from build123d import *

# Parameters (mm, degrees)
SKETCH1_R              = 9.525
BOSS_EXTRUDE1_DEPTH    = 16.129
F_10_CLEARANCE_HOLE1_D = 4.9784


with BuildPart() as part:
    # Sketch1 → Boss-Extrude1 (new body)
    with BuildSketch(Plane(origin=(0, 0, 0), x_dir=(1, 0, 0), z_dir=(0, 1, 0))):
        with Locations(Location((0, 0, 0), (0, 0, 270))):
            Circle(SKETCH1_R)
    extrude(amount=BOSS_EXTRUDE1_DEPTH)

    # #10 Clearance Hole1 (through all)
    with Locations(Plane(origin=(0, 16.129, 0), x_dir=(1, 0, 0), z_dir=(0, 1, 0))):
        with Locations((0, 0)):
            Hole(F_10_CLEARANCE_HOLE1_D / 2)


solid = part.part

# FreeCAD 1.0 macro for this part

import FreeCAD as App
import Part
import Sketcher
from FreeCAD import Vector
Q = App.Units.Quantity

doc = App.newDocument("Part")
body = doc.addObject("PartDesign::Body", "Body")

# Sketch on XZ plane
sketch1 = body.newObject("Sketcher::SketchObject", "Sketch")
sketch1.AttachmentSupport = (doc.getObject("XZ_Plane"), [""])
sketch1.MapMode = "FlatFace"
sketch1.addGeometry(Part.Circle(Vector(0, 0, 0), Vector(0, 0, 1), 10), False)
sketch1.addConstraint([
    Sketcher.Constraint("Coincident", 0, 3, -1, 1),
    Sketcher.Constraint("Diameter", 0, Q("0.75 in")),
])
pad1 = body.newObject("PartDesign::Pad", "Pad")
pad1.Profile = sketch1
pad1.Length = Q("0.635 in")
pad1.Reversed = True

# Sketch on XZ plane
sketch2 = body.newObject("Sketcher::SketchObject", "Sketch001")
sketch2.AttachmentSupport = (doc.getObject("XZ_Plane"), [""])
sketch2.MapMode = "FlatFace"
sketch2.AttachmentOffset = App.Placement(Vector(0, 0, -0.635 * 25.4), App.Rotation())
sketch2.addGeometry(Part.Circle(Vector(0, 0, 0), Vector(0, 0, 1), 2.5), False)
sketch2.addConstraint([
    Sketcher.Constraint("Coincident", 0, 3, -1, 1),
    Sketcher.Constraint("Diameter", 0, Q("0.196 in")),
])
doc.recompute()
hole = body.newObject("PartDesign::Hole", "Hole")
hole.Profile = sketch2
hole.ThreadType = "None"
hole.Diameter = Q("0.196 in")
hole.DepthType = "ThroughAll"
hole.Reversed = True

doc.recompute()
